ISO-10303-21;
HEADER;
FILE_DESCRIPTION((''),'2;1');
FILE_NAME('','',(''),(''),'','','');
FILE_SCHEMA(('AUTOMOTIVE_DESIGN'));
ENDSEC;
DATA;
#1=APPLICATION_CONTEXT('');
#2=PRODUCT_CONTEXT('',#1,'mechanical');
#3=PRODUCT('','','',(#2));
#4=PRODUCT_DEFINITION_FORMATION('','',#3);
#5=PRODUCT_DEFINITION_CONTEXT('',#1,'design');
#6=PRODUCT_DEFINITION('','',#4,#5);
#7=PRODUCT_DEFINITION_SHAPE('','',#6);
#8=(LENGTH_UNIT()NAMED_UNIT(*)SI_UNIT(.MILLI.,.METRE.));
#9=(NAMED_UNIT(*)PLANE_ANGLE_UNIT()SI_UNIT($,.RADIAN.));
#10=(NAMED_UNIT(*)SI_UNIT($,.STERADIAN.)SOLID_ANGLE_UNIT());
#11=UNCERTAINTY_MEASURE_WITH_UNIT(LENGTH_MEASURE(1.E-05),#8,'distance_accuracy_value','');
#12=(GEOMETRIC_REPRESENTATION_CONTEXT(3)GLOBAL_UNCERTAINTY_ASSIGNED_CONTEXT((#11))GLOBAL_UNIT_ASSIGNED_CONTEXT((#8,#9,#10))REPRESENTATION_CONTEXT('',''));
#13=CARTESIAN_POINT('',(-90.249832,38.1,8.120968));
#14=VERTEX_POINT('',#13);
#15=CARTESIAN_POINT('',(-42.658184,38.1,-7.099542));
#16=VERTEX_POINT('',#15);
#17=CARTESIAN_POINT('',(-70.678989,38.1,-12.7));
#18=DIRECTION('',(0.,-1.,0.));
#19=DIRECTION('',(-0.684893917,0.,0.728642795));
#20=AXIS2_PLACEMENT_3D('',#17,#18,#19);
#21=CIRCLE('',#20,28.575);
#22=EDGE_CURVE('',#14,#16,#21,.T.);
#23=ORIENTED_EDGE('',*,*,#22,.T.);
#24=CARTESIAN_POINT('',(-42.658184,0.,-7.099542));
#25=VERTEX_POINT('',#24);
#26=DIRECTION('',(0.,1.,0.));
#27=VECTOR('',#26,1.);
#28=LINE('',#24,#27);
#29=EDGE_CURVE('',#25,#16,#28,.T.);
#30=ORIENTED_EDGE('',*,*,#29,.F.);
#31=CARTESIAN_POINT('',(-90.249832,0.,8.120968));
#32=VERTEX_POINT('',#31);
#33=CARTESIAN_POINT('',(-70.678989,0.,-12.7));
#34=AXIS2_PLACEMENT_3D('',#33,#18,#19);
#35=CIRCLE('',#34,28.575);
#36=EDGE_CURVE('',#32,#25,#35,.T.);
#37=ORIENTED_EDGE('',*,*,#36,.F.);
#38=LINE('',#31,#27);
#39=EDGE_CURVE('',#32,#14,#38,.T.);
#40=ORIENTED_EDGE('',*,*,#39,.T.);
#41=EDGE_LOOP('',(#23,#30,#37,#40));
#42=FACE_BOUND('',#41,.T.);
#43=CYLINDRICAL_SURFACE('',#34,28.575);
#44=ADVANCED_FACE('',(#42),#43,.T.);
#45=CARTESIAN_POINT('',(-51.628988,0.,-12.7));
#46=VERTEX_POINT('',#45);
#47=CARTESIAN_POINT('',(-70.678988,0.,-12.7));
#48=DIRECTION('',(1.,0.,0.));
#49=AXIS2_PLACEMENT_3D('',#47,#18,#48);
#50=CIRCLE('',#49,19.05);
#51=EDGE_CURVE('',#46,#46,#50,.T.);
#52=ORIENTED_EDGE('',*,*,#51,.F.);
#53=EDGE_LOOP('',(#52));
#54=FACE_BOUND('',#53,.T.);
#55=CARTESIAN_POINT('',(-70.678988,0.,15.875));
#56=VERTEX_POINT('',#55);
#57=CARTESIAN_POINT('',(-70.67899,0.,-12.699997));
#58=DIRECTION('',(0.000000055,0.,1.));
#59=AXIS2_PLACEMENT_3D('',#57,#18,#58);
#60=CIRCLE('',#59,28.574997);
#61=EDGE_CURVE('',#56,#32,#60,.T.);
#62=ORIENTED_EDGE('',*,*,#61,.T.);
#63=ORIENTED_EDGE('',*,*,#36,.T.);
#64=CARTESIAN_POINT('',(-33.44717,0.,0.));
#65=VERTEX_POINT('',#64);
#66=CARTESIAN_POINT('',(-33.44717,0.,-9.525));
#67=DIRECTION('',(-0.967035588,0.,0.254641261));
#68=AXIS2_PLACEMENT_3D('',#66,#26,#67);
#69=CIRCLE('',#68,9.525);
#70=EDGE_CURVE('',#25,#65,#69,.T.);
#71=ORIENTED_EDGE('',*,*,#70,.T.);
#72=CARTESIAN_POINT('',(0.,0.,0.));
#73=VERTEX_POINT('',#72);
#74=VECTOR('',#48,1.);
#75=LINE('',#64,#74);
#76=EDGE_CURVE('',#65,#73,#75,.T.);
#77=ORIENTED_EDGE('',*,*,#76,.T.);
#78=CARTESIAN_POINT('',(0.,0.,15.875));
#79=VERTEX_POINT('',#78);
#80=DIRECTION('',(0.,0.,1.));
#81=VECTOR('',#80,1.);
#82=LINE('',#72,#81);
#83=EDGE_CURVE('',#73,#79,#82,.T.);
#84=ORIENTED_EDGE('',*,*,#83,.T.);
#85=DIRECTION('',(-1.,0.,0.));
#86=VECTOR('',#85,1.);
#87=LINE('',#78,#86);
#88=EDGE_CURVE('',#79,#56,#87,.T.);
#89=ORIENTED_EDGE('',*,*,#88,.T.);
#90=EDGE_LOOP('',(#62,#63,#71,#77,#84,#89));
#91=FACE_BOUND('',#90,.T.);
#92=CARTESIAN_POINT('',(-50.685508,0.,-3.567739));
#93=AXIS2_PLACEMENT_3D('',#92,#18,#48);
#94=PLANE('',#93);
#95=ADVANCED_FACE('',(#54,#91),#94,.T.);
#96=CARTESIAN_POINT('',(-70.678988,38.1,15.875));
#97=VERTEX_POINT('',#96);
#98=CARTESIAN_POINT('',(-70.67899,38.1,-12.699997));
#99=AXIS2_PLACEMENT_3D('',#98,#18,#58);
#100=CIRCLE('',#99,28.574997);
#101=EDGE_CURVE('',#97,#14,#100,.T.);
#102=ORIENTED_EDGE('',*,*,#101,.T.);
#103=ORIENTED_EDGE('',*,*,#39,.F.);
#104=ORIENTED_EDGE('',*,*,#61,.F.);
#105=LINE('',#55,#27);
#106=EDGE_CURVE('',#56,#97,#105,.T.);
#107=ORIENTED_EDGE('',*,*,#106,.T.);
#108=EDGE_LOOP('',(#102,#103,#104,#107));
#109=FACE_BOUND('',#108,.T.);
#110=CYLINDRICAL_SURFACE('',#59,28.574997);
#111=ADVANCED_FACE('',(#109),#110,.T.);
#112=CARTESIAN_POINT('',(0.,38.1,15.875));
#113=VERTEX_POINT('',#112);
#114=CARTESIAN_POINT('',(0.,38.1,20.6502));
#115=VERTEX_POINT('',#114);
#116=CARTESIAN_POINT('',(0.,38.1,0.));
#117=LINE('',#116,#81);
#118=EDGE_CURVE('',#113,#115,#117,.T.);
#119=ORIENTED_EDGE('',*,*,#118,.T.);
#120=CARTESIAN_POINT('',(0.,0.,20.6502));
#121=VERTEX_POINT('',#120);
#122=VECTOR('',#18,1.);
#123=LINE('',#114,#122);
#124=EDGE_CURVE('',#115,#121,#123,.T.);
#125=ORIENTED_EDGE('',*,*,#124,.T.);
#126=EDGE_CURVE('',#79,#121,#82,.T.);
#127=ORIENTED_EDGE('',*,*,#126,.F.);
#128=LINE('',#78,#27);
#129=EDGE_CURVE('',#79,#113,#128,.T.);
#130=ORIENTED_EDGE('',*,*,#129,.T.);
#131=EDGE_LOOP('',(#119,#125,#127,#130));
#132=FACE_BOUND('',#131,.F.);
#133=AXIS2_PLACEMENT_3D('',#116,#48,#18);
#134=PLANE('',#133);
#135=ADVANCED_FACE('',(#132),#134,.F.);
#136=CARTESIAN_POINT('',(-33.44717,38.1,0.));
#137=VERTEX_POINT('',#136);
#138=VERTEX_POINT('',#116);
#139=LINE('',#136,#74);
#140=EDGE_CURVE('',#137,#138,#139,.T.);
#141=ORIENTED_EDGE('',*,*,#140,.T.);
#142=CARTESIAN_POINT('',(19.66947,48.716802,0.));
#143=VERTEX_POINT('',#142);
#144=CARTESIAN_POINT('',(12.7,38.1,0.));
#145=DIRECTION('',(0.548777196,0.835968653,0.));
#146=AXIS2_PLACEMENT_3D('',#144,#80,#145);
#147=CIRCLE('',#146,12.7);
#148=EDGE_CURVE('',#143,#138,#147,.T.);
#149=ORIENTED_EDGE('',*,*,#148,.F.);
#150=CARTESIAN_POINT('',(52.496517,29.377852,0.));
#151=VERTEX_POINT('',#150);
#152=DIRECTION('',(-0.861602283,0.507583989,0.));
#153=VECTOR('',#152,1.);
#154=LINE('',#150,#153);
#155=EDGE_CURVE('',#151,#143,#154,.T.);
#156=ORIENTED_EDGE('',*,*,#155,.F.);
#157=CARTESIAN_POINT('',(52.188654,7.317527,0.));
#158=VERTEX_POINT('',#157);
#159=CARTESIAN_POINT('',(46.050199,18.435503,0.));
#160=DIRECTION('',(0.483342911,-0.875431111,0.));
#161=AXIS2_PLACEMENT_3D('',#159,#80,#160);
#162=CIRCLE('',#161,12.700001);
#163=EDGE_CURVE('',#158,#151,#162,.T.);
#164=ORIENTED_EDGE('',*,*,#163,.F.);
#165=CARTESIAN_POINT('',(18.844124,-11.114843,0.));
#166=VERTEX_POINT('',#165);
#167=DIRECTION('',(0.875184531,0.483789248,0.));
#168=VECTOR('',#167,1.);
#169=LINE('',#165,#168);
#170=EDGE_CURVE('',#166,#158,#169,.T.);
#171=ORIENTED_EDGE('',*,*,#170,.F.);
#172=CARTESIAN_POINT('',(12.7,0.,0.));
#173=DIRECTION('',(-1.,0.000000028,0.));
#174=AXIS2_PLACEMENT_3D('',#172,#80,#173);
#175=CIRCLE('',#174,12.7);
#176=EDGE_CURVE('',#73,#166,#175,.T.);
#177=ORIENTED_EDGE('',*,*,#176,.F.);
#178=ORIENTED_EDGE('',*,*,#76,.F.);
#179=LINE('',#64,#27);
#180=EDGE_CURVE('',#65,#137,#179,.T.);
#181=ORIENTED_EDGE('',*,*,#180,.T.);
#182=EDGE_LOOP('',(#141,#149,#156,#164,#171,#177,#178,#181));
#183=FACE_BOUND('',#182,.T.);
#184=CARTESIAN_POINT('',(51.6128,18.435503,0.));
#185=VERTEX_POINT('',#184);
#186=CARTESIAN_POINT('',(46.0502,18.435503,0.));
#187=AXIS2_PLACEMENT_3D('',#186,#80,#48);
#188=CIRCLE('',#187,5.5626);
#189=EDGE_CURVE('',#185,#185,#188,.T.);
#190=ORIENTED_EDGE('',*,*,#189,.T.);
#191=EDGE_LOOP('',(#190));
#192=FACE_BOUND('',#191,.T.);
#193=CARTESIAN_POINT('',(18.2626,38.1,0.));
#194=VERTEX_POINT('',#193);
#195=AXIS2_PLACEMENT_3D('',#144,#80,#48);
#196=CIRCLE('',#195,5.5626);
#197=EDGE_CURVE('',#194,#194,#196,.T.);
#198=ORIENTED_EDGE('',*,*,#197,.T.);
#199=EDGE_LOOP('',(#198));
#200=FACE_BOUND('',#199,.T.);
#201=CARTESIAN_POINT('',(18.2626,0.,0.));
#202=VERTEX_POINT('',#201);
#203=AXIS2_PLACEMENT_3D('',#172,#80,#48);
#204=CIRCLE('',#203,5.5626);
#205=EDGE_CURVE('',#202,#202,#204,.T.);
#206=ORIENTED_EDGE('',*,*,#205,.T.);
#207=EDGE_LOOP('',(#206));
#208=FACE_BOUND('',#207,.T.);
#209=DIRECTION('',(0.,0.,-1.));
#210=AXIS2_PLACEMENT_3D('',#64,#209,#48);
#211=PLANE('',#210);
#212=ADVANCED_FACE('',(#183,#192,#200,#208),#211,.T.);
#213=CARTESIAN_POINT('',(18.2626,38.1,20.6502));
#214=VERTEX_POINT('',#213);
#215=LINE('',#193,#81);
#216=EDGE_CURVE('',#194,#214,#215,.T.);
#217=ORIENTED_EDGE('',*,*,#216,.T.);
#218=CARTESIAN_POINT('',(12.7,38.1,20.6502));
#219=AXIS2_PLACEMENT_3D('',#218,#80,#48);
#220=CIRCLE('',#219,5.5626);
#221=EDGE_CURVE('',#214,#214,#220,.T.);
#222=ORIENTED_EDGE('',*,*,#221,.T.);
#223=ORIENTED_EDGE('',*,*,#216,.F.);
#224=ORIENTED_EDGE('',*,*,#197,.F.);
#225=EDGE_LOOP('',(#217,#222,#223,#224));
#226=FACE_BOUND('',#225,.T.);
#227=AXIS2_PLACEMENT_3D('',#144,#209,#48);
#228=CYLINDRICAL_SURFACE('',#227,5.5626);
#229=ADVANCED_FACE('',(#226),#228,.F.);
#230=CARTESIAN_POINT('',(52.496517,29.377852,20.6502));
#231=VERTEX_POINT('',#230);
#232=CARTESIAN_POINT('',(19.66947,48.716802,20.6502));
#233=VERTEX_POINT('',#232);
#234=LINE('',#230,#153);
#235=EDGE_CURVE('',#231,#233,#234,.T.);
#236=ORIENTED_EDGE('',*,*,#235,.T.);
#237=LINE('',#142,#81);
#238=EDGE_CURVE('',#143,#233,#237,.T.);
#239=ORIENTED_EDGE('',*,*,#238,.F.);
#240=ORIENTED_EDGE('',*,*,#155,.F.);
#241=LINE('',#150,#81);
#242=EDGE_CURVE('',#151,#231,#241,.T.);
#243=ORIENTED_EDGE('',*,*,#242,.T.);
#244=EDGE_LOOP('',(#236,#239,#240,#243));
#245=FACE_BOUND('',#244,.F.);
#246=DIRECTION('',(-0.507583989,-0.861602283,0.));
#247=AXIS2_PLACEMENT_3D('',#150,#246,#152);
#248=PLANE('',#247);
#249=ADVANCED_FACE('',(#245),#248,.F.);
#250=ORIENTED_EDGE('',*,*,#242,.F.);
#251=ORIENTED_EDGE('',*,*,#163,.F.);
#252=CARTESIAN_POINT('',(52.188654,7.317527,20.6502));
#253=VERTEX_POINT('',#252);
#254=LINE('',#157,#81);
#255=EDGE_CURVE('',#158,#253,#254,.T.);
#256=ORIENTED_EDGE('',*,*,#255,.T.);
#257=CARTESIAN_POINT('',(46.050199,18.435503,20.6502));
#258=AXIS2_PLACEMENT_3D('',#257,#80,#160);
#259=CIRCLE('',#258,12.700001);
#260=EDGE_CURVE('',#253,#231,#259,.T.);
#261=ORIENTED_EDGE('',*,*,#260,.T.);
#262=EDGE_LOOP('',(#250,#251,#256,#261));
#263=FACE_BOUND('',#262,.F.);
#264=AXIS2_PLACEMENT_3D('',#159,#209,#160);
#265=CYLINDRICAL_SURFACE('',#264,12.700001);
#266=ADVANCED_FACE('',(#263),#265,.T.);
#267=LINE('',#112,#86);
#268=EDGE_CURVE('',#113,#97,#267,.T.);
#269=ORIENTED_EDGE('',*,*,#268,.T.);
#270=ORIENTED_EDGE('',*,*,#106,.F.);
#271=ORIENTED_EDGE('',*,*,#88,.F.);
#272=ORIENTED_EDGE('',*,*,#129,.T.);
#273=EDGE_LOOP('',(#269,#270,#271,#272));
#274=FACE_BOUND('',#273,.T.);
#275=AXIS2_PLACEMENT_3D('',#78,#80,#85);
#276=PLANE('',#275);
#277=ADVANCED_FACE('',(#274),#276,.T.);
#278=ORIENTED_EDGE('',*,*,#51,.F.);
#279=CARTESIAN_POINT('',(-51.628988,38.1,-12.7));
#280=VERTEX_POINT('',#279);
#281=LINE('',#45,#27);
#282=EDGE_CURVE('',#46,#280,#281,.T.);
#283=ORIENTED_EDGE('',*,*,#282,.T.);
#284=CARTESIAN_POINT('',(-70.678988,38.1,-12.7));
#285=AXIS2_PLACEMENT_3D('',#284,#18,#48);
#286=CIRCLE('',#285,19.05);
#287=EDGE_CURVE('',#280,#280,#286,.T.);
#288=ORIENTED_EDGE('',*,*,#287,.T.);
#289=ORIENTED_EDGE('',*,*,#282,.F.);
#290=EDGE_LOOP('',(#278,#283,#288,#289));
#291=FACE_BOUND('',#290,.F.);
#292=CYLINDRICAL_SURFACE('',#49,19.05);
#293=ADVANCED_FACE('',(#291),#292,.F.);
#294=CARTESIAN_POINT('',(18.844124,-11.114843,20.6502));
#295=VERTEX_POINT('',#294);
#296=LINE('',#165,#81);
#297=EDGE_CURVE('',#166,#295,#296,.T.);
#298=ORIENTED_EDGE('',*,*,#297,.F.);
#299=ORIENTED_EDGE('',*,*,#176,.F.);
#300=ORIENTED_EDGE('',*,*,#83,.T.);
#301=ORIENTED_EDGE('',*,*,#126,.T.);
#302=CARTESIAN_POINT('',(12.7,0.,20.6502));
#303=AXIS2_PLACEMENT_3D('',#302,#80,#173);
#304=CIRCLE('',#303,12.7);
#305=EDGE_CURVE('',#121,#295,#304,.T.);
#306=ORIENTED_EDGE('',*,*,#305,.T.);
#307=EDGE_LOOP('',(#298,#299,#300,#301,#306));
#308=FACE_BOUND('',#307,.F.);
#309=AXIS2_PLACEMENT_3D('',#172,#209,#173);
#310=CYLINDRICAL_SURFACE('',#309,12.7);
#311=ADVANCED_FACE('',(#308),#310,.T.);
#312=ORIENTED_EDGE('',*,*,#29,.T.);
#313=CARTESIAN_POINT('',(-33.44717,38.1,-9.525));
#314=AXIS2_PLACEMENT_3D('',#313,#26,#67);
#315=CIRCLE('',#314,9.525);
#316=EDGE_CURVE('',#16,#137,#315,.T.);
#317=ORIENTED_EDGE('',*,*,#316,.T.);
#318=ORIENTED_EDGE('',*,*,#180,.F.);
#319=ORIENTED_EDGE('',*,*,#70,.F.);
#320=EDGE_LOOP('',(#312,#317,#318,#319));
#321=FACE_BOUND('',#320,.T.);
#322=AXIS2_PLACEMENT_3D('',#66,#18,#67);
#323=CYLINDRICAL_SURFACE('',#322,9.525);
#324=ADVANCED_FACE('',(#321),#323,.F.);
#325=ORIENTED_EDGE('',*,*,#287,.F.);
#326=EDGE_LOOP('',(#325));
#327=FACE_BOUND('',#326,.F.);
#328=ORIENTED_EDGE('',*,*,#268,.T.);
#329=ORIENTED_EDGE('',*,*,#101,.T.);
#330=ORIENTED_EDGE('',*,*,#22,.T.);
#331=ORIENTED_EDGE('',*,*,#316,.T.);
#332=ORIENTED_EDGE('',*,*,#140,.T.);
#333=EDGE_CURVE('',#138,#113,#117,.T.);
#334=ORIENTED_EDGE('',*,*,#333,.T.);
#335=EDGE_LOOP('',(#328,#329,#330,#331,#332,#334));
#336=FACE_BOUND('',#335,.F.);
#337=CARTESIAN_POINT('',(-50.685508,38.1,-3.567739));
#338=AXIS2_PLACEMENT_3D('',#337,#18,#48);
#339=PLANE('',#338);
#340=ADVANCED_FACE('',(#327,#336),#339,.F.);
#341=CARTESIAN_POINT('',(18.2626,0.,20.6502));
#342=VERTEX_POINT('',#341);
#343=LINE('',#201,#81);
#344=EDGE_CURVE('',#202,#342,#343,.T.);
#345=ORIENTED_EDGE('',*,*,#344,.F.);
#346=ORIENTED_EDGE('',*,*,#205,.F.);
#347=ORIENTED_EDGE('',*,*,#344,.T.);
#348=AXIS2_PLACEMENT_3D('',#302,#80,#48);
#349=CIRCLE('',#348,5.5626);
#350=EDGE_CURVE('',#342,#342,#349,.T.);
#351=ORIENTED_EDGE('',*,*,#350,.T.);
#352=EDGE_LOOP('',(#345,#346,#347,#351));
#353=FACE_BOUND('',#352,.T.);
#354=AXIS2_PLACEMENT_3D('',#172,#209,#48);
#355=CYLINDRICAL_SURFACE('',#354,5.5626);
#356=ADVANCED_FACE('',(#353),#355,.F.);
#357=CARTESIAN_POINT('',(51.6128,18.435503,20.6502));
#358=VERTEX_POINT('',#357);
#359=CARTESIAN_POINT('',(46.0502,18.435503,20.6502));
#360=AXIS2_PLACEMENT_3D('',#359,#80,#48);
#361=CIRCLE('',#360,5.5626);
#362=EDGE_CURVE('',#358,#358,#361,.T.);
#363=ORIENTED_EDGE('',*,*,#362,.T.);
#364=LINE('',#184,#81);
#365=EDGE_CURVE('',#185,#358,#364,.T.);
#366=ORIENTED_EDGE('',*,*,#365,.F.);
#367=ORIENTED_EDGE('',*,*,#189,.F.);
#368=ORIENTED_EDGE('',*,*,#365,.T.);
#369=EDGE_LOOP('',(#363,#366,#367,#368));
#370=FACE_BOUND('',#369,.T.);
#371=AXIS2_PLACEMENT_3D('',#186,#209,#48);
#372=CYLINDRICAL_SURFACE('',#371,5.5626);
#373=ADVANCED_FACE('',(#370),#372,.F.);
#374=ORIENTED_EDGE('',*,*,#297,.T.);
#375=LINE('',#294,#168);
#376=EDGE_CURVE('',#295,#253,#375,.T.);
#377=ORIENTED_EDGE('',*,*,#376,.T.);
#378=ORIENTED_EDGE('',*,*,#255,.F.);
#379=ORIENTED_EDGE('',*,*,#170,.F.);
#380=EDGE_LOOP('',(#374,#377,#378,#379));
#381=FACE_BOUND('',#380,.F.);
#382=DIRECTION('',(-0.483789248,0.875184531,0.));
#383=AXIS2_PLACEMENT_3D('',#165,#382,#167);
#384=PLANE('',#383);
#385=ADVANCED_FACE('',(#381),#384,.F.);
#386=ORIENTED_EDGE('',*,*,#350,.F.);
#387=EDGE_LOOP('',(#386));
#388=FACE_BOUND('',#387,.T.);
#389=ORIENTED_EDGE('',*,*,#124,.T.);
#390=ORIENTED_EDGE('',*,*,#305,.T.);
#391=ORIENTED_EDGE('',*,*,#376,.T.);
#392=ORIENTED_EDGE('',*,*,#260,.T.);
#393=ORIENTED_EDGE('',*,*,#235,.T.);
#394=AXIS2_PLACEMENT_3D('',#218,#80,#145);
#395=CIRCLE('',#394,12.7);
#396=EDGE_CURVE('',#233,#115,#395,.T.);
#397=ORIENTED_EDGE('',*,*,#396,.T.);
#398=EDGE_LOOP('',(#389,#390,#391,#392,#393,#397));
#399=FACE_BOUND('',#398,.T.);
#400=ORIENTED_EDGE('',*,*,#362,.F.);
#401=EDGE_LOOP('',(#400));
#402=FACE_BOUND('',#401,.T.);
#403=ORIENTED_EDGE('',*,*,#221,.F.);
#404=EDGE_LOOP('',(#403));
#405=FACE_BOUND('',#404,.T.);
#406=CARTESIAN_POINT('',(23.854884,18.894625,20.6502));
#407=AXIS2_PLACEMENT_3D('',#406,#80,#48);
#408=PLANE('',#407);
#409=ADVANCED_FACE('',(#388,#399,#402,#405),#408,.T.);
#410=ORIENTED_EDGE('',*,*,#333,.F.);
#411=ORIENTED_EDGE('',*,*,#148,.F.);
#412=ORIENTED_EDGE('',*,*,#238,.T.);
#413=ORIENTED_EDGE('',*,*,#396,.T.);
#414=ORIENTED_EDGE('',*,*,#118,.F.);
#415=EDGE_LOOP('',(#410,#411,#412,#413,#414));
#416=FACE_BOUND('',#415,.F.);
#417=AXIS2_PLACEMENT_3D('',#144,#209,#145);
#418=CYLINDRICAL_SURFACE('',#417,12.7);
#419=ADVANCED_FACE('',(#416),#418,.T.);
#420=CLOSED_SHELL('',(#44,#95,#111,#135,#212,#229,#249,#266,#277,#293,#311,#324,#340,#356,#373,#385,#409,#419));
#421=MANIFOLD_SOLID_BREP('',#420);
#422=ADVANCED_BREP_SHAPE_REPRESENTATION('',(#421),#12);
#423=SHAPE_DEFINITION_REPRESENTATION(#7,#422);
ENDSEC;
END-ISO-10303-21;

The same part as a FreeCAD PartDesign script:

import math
import FreeCAD as App
import Part
import Sketcher
from FreeCAD import Vector
Q = App.Units.Quantity

doc = App.newDocument("Part")
body = doc.addObject("PartDesign::Body", "Body")

sketch1 = doc.addObject("Sketcher::SketchObject", "Sketch")
body.addObject(sketch1)
sketch1.AttachmentSupport = (doc.XY_Plane, [""])
sketch1.MapMode = "FlatFace"
sketch1.addGeometry([
    Part.LineSegment(Vector(0, 38, 0), Vector(0, 0, 0)),
    Part.ArcOfCircle(Part.Circle(Vector(13, 0, 0), Vector(0, 0, 1), 13), math.radians(180), math.radians(299)),
    Part.LineSegment(Vector(19, -11, 0), Vector(52, 7, 0)),
    Part.ArcOfCircle(Part.Circle(Vector(46, 18, 0), Vector(0, 0, 1), 13), math.radians(-61), math.radians(59)),
    Part.LineSegment(Vector(52, 29, 0), Vector(20, 49, 0)),
    Part.ArcOfCircle(Part.Circle(Vector(13, 38, 0), Vector(0, 0, 1), 13), math.radians(57), math.radians(180)),
    Part.Circle(Vector(13, 0, 0), Vector(0, 0, 1), 6),
    Part.Circle(Vector(46, 18, 0), Vector(0, 0, 1), 6),
    Part.Circle(Vector(13, 38, 0), Vector(0, 0, 1), 6),
], False)
sketch1.addConstraint([
    Sketcher.Constraint("Tangent", 0, 2, 1, 1),
    Sketcher.Constraint("Tangent", 1, 2, 2, 1),
    Sketcher.Constraint("Coincident", 2, 2, 3, 1),
    Sketcher.Constraint("Tangent", 3, 2, 4, 1),
    Sketcher.Constraint("Coincident", 4, 2, 5, 1),
    Sketcher.Constraint("Tangent", 5, 2, 0, 1),
    Sketcher.Constraint("Vertical", 0),
    Sketcher.Constraint("Coincident", 0, 2, -1, 1),
    Sketcher.Constraint("Coincident", 6, 3, 1, 3),
    Sketcher.Constraint("Coincident", 7, 3, 3, 3),
    Sketcher.Constraint("Coincident", 8, 3, 5, 3),
    Sketcher.Constraint("Equal", 1, 3),
    Sketcher.Constraint("Equal", 3, 5),
    Sketcher.Constraint("Equal", 6, 7),
    Sketcher.Constraint("Equal", 7, 8),
    Sketcher.Constraint("Equal", 2, 4),
    Sketcher.Constraint("Radius", 1, Q("0.5 in")),
    Sketcher.Constraint("Diameter", 6, Q("0.438 in")),
    Sketcher.Constraint("DistanceY", 0, 2, 0, 1, Q("1.5 in")),
    Sketcher.Constraint("Distance", 2, Q("1.5 in")),
    Sketcher.Constraint("DistanceX", -1, 1, 3, 3, Q("1.8129999 in")),
    Sketcher.Constraint("DistanceY", 5, 3, 4, 2, Q("10.616802 mm")),
])
pad1 = doc.addObject("PartDesign::Pad", "Pad")
body.addObject(pad1)
pad1.Profile = sketch1
pad1.Length = Q("0.813 in")

sketch2 = doc.addObject("Sketcher::SketchObject", "Sketch001")
body.addObject(sketch2)
sketch2.AttachmentSupport = (doc.XZ_Plane, [""])
sketch2.MapMode = "FlatFace"
sketch2.addGeometry([
    Part.LineSegment(Vector(0, 0, 0), Vector(0, 16, 0)),
    Part.LineSegment(Vector(0, 16, 0), Vector(-71, 16, 0)),
    Part.ArcOfCircle(Part.Circle(Vector(-71, -13, 0), Vector(0, 0, 1), 29), math.radians(90), math.radians(133)),
    Part.ArcOfCircle(Part.Circle(Vector(-71, -13, 0), Vector(0, 0, 1), 29), math.radians(133), math.radians(371)),
    Part.ArcOfCircle(Part.Circle(Vector(-33, -10, 0), Vector(0, 0, 1), 10), math.radians(90), math.radians(165)),
    Part.LineSegment(Vector(-33, 0, 0), Vector(0, 0, 0)),
    Part.Circle(Vector(-71, -13, 0), Vector(0, 0, 1), 19),
], False)
sketch2.addConstraint([
    Sketcher.Constraint("Coincident", 0, 2, 1, 1),
    Sketcher.Constraint("Tangent", 1, 2, 2, 1),
    Sketcher.Constraint("Tangent", 2, 2, 3, 1),
    Sketcher.Constraint("Coincident", 3, 2, 4, 2),
    Sketcher.Constraint("Tangent", 4, 1, 5, 1),
    Sketcher.Constraint("Coincident", 5, 2, 0, 1),
    Sketcher.Constraint("Vertical", 0),
    Sketcher.Constraint("Horizontal", 1),
    Sketcher.Constraint("Horizontal", 5),
    Sketcher.Constraint("Coincident", 5, 2, -1, 1),
    Sketcher.Constraint("Coincident", 6, 3, 2, 3),
    Sketcher.Constraint("Diameter", 6, Q("1.5 in")),
    Sketcher.Constraint("Radius", 2, Q("1.1249999 in")),
    Sketcher.Constraint("Radius", 3, Q("1.125 in")),
    Sketcher.Constraint("Radius", 4, Q("0.375 in")),
    Sketcher.Constraint("DistanceY", 4, 3, 0, 2, Q("1 in")),
    Sketcher.Constraint("DistanceX", 1, 2, 1, 1, Q("70.678988 mm")),
    Sketcher.Constraint("DistanceX", 5, 1, 5, 2, Q("33.44717 mm")),
    Sketcher.Constraint("DistanceX", 2, 2, -1, 1, Q("90.249832 mm")),
])
pad2 = doc.addObject("PartDesign::Pad", "Pad001")
body.addObject(pad2)
pad2.Profile = sketch2
pad2.Length = Q("1.5 in")
pad2.Reversed = True

doc.recompute()
